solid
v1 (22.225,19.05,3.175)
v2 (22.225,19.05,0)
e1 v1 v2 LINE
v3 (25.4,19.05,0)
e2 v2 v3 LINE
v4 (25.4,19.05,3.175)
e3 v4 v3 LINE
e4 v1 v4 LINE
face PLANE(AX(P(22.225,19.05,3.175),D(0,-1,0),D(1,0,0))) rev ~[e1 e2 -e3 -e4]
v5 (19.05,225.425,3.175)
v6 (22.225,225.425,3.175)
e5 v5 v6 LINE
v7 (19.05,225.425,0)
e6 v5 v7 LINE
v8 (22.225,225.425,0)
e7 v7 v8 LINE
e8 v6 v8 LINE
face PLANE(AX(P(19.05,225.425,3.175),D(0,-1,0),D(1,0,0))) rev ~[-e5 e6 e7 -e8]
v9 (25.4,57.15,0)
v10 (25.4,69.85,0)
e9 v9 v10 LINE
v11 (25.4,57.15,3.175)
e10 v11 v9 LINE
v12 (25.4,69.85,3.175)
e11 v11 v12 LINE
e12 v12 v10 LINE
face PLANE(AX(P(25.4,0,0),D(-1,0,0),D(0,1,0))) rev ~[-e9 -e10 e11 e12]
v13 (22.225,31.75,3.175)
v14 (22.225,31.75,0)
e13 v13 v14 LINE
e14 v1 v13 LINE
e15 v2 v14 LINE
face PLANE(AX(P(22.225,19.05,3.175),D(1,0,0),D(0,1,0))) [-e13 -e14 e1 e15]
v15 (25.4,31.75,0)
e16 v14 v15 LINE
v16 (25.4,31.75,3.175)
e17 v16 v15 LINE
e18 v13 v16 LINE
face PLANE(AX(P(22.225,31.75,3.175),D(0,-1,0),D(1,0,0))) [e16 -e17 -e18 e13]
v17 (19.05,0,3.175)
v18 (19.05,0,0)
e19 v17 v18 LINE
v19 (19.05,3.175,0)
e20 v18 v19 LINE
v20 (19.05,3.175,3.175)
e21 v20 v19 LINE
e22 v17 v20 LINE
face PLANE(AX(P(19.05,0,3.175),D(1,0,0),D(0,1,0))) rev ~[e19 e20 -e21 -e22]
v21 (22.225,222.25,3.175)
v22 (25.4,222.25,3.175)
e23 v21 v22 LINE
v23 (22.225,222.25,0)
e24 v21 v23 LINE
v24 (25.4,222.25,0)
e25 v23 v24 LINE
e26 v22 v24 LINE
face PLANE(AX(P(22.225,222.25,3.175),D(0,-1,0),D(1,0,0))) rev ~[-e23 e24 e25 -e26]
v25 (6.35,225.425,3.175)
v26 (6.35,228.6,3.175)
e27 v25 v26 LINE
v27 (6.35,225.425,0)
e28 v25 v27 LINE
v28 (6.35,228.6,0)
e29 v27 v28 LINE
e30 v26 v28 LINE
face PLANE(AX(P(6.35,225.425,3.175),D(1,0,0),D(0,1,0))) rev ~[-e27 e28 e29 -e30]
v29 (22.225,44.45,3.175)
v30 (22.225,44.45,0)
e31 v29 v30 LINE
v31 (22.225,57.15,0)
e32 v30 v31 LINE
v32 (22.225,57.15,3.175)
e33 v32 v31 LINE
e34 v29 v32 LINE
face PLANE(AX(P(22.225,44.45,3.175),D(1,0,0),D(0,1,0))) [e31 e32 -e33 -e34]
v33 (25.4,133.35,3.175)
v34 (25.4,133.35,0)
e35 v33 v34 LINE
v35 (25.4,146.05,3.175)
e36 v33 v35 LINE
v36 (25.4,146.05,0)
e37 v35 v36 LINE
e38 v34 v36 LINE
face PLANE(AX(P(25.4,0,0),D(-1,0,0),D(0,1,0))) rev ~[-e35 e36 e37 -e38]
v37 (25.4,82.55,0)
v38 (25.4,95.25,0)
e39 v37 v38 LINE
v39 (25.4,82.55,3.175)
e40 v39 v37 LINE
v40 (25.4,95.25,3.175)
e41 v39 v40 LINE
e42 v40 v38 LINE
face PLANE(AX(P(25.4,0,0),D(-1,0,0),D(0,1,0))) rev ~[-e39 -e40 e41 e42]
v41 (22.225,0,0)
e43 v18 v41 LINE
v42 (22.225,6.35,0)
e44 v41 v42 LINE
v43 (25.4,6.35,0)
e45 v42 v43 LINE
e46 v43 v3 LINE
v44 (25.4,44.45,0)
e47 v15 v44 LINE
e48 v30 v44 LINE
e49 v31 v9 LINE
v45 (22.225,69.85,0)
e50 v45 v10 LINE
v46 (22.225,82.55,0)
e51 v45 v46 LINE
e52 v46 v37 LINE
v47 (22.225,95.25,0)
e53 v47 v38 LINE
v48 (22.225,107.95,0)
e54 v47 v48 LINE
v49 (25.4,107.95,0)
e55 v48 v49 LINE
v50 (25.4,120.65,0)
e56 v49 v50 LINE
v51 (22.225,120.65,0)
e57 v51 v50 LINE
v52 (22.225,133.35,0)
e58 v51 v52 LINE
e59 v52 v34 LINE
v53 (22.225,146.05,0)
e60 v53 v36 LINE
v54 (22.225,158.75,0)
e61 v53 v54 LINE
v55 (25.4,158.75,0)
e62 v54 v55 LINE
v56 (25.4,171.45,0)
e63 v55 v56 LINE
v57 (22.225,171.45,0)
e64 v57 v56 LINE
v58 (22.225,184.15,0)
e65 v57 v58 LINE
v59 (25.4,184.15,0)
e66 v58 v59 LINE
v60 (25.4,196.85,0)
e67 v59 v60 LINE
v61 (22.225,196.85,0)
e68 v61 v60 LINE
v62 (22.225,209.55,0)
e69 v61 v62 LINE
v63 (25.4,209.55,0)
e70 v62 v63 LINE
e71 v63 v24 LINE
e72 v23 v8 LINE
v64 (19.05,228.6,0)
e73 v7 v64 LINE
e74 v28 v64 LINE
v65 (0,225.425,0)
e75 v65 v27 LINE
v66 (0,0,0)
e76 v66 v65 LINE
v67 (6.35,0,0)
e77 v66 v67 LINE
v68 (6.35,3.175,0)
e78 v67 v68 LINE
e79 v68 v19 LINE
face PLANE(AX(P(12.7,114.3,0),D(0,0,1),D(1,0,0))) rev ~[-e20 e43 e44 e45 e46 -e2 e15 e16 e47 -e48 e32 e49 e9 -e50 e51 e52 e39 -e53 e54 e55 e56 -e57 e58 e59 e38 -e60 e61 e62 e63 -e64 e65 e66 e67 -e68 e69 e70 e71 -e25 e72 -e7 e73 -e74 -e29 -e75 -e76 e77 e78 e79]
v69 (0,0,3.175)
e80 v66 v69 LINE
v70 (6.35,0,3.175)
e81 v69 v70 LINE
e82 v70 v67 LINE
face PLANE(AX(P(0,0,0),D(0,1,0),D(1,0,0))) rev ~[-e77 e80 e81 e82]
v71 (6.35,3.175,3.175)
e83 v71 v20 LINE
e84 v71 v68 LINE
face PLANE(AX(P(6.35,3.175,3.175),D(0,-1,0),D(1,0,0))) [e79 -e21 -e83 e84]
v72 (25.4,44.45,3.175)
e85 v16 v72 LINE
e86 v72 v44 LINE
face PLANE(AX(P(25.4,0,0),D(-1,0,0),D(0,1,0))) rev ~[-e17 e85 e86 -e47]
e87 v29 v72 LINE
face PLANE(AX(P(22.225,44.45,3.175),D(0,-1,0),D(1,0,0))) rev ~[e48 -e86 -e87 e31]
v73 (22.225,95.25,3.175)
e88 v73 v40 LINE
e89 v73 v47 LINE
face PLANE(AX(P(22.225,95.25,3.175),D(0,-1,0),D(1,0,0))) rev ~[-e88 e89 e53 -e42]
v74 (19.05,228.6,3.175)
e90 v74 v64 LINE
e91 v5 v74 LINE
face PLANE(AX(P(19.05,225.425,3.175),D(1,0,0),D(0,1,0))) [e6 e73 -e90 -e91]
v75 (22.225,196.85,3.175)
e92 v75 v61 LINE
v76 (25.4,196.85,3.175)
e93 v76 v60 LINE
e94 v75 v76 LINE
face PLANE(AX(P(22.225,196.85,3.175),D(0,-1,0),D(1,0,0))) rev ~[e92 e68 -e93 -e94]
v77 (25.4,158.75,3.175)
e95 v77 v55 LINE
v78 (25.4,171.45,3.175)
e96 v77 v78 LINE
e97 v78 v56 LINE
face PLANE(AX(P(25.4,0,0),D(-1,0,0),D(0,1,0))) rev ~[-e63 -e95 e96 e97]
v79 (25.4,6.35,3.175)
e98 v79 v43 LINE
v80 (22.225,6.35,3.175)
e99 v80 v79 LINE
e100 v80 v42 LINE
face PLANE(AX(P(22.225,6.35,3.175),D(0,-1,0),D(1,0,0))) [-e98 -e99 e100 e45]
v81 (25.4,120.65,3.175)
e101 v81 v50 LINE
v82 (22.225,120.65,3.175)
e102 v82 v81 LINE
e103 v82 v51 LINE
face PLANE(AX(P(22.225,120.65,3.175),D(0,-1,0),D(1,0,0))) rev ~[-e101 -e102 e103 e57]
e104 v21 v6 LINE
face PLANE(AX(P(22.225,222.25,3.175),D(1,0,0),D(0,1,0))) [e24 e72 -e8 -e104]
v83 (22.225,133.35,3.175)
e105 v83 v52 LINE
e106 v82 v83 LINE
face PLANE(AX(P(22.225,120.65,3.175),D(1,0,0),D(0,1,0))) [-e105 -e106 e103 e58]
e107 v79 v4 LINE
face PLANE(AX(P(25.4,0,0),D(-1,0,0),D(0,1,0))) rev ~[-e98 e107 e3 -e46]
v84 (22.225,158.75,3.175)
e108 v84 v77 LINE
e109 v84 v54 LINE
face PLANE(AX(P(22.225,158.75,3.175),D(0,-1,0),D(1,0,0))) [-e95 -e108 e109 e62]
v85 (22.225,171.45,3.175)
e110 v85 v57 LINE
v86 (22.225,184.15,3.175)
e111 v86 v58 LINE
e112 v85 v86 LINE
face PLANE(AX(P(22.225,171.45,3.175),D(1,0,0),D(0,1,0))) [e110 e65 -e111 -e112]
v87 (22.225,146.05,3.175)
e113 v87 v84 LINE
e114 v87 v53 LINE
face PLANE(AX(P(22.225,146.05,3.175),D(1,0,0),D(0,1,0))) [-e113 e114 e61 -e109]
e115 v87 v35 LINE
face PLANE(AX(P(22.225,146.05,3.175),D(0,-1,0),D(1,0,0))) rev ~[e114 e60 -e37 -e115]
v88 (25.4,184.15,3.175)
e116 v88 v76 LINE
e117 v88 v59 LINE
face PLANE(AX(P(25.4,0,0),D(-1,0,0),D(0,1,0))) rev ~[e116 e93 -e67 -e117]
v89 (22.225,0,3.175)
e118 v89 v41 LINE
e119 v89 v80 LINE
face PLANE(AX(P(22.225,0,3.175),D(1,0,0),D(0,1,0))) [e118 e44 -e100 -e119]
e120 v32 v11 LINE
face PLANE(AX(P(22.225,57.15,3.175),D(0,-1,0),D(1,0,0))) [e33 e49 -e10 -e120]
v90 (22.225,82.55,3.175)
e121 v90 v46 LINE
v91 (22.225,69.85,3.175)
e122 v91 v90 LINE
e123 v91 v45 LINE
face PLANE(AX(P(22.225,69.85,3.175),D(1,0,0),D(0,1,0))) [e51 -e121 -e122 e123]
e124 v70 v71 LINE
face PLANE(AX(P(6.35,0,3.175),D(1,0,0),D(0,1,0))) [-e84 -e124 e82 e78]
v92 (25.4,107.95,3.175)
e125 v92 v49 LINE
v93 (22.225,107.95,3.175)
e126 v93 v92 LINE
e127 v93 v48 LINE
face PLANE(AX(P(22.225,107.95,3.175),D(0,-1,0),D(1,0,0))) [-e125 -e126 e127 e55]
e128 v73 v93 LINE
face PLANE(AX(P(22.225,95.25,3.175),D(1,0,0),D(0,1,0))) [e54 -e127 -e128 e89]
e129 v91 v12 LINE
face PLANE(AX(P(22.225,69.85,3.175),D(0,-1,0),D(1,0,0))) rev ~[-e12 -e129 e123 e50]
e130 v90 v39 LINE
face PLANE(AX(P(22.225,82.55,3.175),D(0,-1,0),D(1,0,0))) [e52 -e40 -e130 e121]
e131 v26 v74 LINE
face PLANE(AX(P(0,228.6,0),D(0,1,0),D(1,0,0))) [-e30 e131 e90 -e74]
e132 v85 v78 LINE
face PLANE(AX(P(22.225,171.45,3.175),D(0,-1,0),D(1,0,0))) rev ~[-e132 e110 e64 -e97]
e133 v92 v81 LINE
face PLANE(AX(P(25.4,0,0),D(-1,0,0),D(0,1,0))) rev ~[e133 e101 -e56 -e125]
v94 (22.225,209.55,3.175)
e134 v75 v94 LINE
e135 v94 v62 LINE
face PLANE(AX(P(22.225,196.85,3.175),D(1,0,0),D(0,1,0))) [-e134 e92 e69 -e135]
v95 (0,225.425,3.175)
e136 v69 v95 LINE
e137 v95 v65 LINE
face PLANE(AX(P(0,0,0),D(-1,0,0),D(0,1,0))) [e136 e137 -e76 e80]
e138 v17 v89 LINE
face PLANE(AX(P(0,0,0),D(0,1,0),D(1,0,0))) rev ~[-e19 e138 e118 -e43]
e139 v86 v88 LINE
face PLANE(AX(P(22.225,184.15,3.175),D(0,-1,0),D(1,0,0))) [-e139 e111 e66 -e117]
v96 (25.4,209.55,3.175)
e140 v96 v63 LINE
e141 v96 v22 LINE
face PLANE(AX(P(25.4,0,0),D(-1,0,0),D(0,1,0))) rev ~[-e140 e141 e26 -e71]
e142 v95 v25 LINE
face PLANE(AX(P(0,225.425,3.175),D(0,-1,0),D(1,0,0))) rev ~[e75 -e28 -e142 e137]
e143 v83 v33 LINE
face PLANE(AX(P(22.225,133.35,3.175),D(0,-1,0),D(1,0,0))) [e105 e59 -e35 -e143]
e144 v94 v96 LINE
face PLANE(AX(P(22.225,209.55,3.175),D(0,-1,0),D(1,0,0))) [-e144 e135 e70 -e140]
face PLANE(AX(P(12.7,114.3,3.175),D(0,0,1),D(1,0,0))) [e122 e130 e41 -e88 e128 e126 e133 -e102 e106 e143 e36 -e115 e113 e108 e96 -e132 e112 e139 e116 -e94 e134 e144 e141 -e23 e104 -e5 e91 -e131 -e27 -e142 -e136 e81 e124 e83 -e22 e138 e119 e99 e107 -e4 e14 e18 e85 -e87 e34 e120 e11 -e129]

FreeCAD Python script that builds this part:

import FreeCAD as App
import Part
import Sketcher
from FreeCAD import Vector
Q = App.Units.Quantity

doc = App.newDocument("Part")
body = doc.addObject("PartDesign::Body", "Body")

sketch1 = doc.addObject("Sketcher::SketchObject", "Sketch")
body.addObject(sketch1)
sketch1.AttachmentSupport = (doc.XY_Plane, [""])
sketch1.MapMode = "FlatFace"
sketch1.addGeometry([
    Part.LineSegment(Vector(0, 229, 0), Vector(0, 0, 0)),
    Part.LineSegment(Vector(0, 0, 0), Vector(25, 0, 0)),
    Part.LineSegment(Vector(25, 0, 0), Vector(25, 229, 0)),
    Part.LineSegment(Vector(25, 229, 0), Vector(0, 229, 0)),
], False)
sketch1.addConstraint([
    Sketcher.Constraint("Coincident", 0, 2, 1, 1),
    Sketcher.Constraint("Coincident", 1, 2, 2, 1),
    Sketcher.Constraint("Coincident", 2, 2, 3, 1),
    Sketcher.Constraint("Coincident", 3, 2, 0, 1),
    Sketcher.Constraint("Vertical", 0),
    Sketcher.Constraint("Horizontal", 1),
    Sketcher.Constraint("Vertical", 2),
    Sketcher.Constraint("Horizontal", 3),
    Sketcher.Constraint("Coincident", 0, 2, -1, 1),
    Sketcher.Constraint("DistanceX", 1, 1, 1, 2, Q("1 in")),
    Sketcher.Constraint("DistanceY", 0, 2, 0, 1, Q("9 in")),
])
pad1 = doc.addObject("PartDesign::Pad", "Pad")
body.addObject(pad1)
pad1.Profile = sketch1
pad1.Length = Q("0.125 in")

sketch2 = doc.addObject("Sketcher::SketchObject", "Sketch001")
body.addObject(sketch2)
sketch2.AttachmentSupport = (doc.XY_Plane, [""])
sketch2.MapMode = "FlatFace"
sketch2.AttachmentOffset = App.Placement(Vector(0, 0, 0.125 * 25.4), App.Rotation())
sketch2.addGeometry([
    Part.LineSegment(Vector(22.2, 228.6, 0), Vector(22.2, 222.2, 0)),
    Part.LineSegment(Vector(22.2, 222.2, 0), Vector(25.4, 222.2, 0)),
    Part.LineSegment(Vector(25.4, 222.2, 0), Vector(25.4, 228.6, 0)),
    Part.LineSegment(Vector(25.4, 228.6, 0), Vector(22.2, 228.6, 0)),
], False)
sketch2.addConstraint([
    Sketcher.Constraint("Coincident", 0, 2, 1, 1),
    Sketcher.Constraint("Coincident", 1, 2, 2, 1),
    Sketcher.Constraint("Coincident", 2, 2, 3, 1),
    Sketcher.Constraint("Coincident", 3, 2, 0, 1),
    Sketcher.Constraint("Vertical", 0),
    Sketcher.Constraint("Horizontal", 1),
    Sketcher.Constraint("Vertical", 2),
    Sketcher.Constraint("Horizontal", 3),
    Sketcher.Constraint("DistanceX", -1, 1, 1, 2, Q("1 in")),
    Sketcher.Constraint("DistanceY", -1, 1, 2, 2, Q("9 in")),
    Sketcher.Constraint("DistanceY", 0, 2, 0, 1, Q("0.25 in")),
    Sketcher.Constraint("DistanceX", 1, 1, 1, 2, Q("0.125 in")),
])
pocket1 = doc.addObject("PartDesign::Pocket", "Pocket")
body.addObject(pocket1)
pocket1.Profile = sketch2
pocket1.Length = Q("0.125 in")
doc.recompute()

linearpattern = doc.addObject("PartDesign::LinearPattern", "LinearPattern")
body.addObject(linearpattern)
linearpattern.Originals = [pocket1]
linearpattern.Direction = (doc.Y_Axis, [""])
linearpattern.Mode = "offset"
linearpattern.Offset = Q("8.75 in")
linearpattern.Occurrences = 2
linearpattern.Reversed = True
body.Tip = linearpattern

sketch3 = doc.addObject("Sketcher::SketchObject", "Sketch002")
body.addObject(sketch3)
sketch3.AttachmentSupport = (doc.XY_Plane, [""])
sketch3.MapMode = "FlatFace"
sketch3.AttachmentOffset = App.Placement(Vector(0, 0, 0.125 * 25.4), App.Rotation())
sketch3.addGeometry([
    Part.LineSegment(Vector(22.2, 209.6, 0), Vector(22.2, 196.8, 0)),
    Part.LineSegment(Vector(22.2, 196.8, 0), Vector(25.4, 196.8, 0)),
    Part.LineSegment(Vector(25.4, 196.8, 0), Vector(25.4, 209.6, 0)),
    Part.LineSegment(Vector(25.4, 209.6, 0), Vector(22.2, 209.6, 0)),
], False)
sketch3.addConstraint([
    Sketcher.Constraint("Coincident", 0, 2, 1, 1),
    Sketcher.Constraint("Coincident", 1, 2, 2, 1),
    Sketcher.Constraint("Coincident", 2, 2, 3, 1),
    Sketcher.Constraint("Coincident", 3, 2, 0, 1),
    Sketcher.Constraint("Vertical", 0),
    Sketcher.Constraint("Horizontal", 1),
    Sketcher.Constraint("Vertical", 2),
    Sketcher.Constraint("Horizontal", 3),
    Sketcher.Constraint("DistanceY", 0, 2, 0, 1, Q("0.5 in")),
    Sketcher.Constraint("DistanceX", -1, 1, 1, 2, Q("1 in")),
    Sketcher.Constraint("DistanceX", 1, 1, 1, 2, Q("0.125 in")),
    Sketcher.Constraint("DistanceY", -1, 1, 0, 2, Q("7.75 in")),
])
pocket2 = doc.addObject("PartDesign::Pocket", "Pocket001")
body.addObject(pocket2)
pocket2.Profile = sketch3
pocket2.Length = Q("0.125 in")
doc.recompute()

linearpattern2 = doc.addObject("PartDesign::LinearPattern", "LinearPattern001")
body.addObject(linearpattern2)
linearpattern2.Originals = [pocket2]
linearpattern2.Direction = (doc.Y_Axis, [""])
linearpattern2.Mode = "offset"
linearpattern2.Offset = Q("1 in")
linearpattern2.Occurrences = 8
linearpattern2.Reversed = True
body.Tip = linearpattern2

sketch4 = doc.addObject("Sketcher::SketchObject", "Sketch003")
body.addObject(sketch4)
sketch4.AttachmentSupport = (doc.XY_Plane, [""])
sketch4.MapMode = "FlatFace"
sketch4.AttachmentOffset = App.Placement(Vector(0, 0, 0.125 * 25.4), App.Rotation())
sketch4.addGeometry([
    Part.LineSegment(Vector(6.3, 3.2, 0), Vector(6.3, 0, 0)),
    Part.LineSegment(Vector(6.3, 0, 0), Vector(19.1, 0, 0)),
    Part.LineSegment(Vector(19.1, 0, 0), Vector(19.1, 3.2, 0)),
    Part.LineSegment(Vector(19.1, 3.2, 0), Vector(6.3, 3.2, 0)),
], False)
sketch4.addConstraint([
    Sketcher.Constraint("Coincident", 0, 2, 1, 1),
    Sketcher.Constraint("Coincident", 1, 2, 2, 1),
    Sketcher.Constraint("Coincident", 2, 2, 3, 1),
    Sketcher.Constraint("Coincident", 3, 2, 0, 1),
    Sketcher.Constraint("Vertical", 0),
    Sketcher.Constraint("Horizontal", 1),
    Sketcher.Constraint("Vertical", 2),
    Sketcher.Constraint("Horizontal", 3),
    Sketcher.Constraint("PointOnObject", 0, 2, -1),
    Sketcher.Constraint("DistanceX", 1, 1, 1, 2, Q("0.5 in")),
    Sketcher.Constraint("DistanceY", 0, 2, 0, 1, Q("0.125 in")),
    Sketcher.Constraint("DistanceX", -1, 1, 0, 2, Q("0.25 in")),
])
pocket3 = doc.addObject("PartDesign::Pocket", "Pocket002")
body.addObject(pocket3)
pocket3.Profile = sketch4
pocket3.Length = Q("0.125 in")

sketch5 = doc.addObject("Sketcher::SketchObject", "Sketch004")
body.addObject(sketch5)
sketch5.AttachmentSupport = (doc.XY_Plane, [""])
sketch5.MapMode = "FlatFace"
sketch5.AttachmentOffset = App.Placement(Vector(0, 0, 0.125 * 25.4), App.Rotation())
sketch5.addGeometry([
    Part.LineSegment(Vector(0, 228.6, 0), Vector(0, 225.4, 0)),
    Part.LineSegment(Vector(0, 225.4, 0), Vector(6.3, 225.4, 0)),
    Part.LineSegment(Vector(6.3, 225.4, 0), Vector(6.3, 228.6, 0)),
    Part.LineSegment(Vector(6.3, 228.6, 0), Vector(0, 228.6, 0)),
], False)
sketch5.addConstraint([
    Sketcher.Constraint("Coincident", 0, 2, 1, 1),
    Sketcher.Constraint("Coincident", 1, 2, 2, 1),
    Sketcher.Constraint("Coincident", 2, 2, 3, 1),
    Sketcher.Constraint("Coincident", 3, 2, 0, 1),
    Sketcher.Constraint("Vertical", 0),
    Sketcher.Constraint("Horizontal", 1),
    Sketcher.Constraint("Vertical", 2),
    Sketcher.Constraint("Horizontal", 3),
    Sketcher.Constraint("PointOnObject", 0, 2, -2),
    Sketcher.Constraint("DistanceY", -1, 1, 2, 2, Q("9 in")),
    Sketcher.Constraint("DistanceX", 1, 1, 1, 2, Q("0.25 in")),
    Sketcher.Constraint("DistanceY", 0, 2, 0, 1, Q("0.125 in")),
])
pocket4 = doc.addObject("PartDesign::Pocket", "Pocket003")
body.addObject(pocket4)
pocket4.Profile = sketch5
pocket4.Length = Q("0.125 in")
doc.recompute()

linearpattern3 = doc.addObject("PartDesign::LinearPattern", "LinearPattern002")
body.addObject(linearpattern3)
linearpattern3.Originals = [pocket4]
linearpattern3.Direction = (doc.X_Axis, [""])
linearpattern3.Mode = "offset"
linearpattern3.Offset = Q("0.75 in")
linearpattern3.Occurrences = 2
body.Tip = linearpattern3

doc.recompute()
